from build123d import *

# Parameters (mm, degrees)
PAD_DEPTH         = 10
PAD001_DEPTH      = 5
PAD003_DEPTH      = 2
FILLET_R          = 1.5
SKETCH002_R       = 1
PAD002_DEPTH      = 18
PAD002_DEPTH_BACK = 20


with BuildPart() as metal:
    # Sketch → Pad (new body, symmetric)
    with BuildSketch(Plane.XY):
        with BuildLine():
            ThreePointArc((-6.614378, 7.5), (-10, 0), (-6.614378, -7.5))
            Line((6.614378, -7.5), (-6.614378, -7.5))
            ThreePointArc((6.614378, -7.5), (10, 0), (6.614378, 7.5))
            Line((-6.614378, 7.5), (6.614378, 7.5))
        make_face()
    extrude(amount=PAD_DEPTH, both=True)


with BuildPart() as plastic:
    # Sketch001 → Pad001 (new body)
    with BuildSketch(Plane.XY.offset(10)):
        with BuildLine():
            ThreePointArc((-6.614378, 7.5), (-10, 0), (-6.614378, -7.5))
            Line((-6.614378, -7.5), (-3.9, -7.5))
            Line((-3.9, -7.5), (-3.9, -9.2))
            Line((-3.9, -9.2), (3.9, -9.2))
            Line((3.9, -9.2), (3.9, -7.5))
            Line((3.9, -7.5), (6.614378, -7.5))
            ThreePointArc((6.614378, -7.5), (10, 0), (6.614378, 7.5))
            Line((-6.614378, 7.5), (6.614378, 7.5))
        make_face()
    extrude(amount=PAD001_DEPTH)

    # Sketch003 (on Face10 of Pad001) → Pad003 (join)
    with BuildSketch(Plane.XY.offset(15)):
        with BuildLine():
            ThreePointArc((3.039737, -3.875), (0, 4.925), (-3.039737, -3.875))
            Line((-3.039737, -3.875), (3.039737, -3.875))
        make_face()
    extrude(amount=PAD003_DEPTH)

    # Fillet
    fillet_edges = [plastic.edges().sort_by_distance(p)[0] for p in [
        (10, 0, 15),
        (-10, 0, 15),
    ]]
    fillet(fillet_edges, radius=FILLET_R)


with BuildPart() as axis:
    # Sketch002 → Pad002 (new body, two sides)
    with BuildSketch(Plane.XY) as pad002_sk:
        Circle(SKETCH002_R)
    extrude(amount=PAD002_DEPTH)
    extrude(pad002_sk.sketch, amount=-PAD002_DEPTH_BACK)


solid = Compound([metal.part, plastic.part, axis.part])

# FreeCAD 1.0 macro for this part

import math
import FreeCAD as App
import Part
import Sketcher
Q = App.Units.Quantity


def edges_at(feature, points):
    """Names of the edges that pass closest to the given points."""
    edges = feature.Shape.Edges
    near = lambda p: min(range(len(edges)), key=lambda i: edges[i].distToShape(Part.Vertex(*p))[0])
    return sorted({f"Edge{near(p) + 1}" for p in points})

doc = App.newDocument("Part")
body = doc.addObject("PartDesign::Body", "Body")

sketch1 = body.newObject("Sketcher::SketchObject", "Sketch")
sketch1.AttachmentSupport = (doc.getObject("XY_Plane"), [""])
sketch1.MapMode = "FlatFace"
sketch1.addGeometry([
    Part.ArcOfCircle(Part.Circle(App.Vector(0, 0, 0), App.Vector(0, 0, 1), 10), math.radians(131), math.radians(229)),
    Part.LineSegment(App.Vector(-7, -8, 0), App.Vector(7, -8, 0)),
    Part.ArcOfCircle(Part.Circle(App.Vector(0, 0, 0), App.Vector(0, 0, 1), 10), math.radians(-49), math.radians(49)),
    Part.LineSegment(App.Vector(7, 8, 0), App.Vector(-7, 8, 0)),
], False)
sketch1.addConstraint([
    Sketcher.Constraint("Coincident", 0, 2, 1, 1),
    Sketcher.Constraint("Coincident", 1, 2, 2, 1),
    Sketcher.Constraint("Coincident", 2, 2, 3, 1),
    Sketcher.Constraint("Coincident", 3, 2, 0, 1),
    Sketcher.Constraint("Horizontal", 1),
    Sketcher.Constraint("Horizontal", 3),
    Sketcher.Constraint("Coincident", 0, 3, -1, 1),
    Sketcher.Constraint("Coincident", 2, 3, -1, 1),
    Sketcher.Constraint("Equal", 0, 2),
    Sketcher.Constraint("Vertical", 1, 2, 2, 2),
    Sketcher.Constraint("Radius", 0, Q("9.999999 mm")),
    Sketcher.Constraint("DistanceY", 1, 2, 2, 2, Q("15 mm")),
])
pad1 = body.newObject("PartDesign::Pad", "Pad")
pad1.Profile = sketch1
pad1.Length = 20
pad1.Midplane = True
body2 = doc.addObject("PartDesign::Body", "Body001")

sketch2 = body2.newObject("Sketcher::SketchObject", "Sketch001")
sketch2.AttachmentSupport = (doc.getObject("XY_Plane001"), [""])
sketch2.MapMode = "FlatFace"
sketch2.AttachmentOffset = App.Placement(App.Vector(0, 0, 10), App.Rotation())
sketch2.addGeometry([
    Part.ArcOfCircle(Part.Circle(App.Vector(0, 0, 0), App.Vector(0, 0, 1), 10), math.radians(131), math.radians(229)),
    Part.LineSegment(App.Vector(-6.6, -7.5, 0), App.Vector(-3.9, -7.5, 0)),
    Part.LineSegment(App.Vector(-3.9, -7.5, 0), App.Vector(-3.9, -9.2, 0)),
    Part.LineSegment(App.Vector(-3.9, -9.2, 0), App.Vector(3.9, -9.2, 0)),
    Part.LineSegment(App.Vector(3.9, -9.2, 0), App.Vector(3.9, -7.5, 0)),
    Part.LineSegment(App.Vector(3.9, -7.5, 0), App.Vector(6.6, -7.5, 0)),
    Part.ArcOfCircle(Part.Circle(App.Vector(0, 0, 0), App.Vector(0, 0, 1), 10), math.radians(-49), math.radians(49)),
    Part.LineSegment(App.Vector(6.6, 7.5, 0), App.Vector(-6.6, 7.5, 0)),
], False)
sketch2.addConstraint([
    Sketcher.Constraint("Coincident", 0, 2, 1, 1),
    Sketcher.Constraint("Coincident", 1, 2, 2, 1),
    Sketcher.Constraint("Coincident", 2, 2, 3, 1),
    Sketcher.Constraint("Coincident", 3, 2, 4, 1),
    Sketcher.Constraint("Coincident", 4, 2, 5, 1),
    Sketcher.Constraint("Coincident", 5, 2, 6, 1),
    Sketcher.Constraint("Coincident", 6, 2, 7, 1),
    Sketcher.Constraint("Coincident", 7, 2, 0, 1),
    Sketcher.Constraint("Horizontal", 1),
    Sketcher.Constraint("Vertical", 2),
    Sketcher.Constraint("Horizontal", 3),
    Sketcher.Constraint("Vertical", 4),
    Sketcher.Constraint("Horizontal", 5),
    Sketcher.Constraint("Horizontal", 7),
    Sketcher.Constraint("Coincident", 0, 3, -1, 1),
    Sketcher.Constraint("Coincident", 6, 3, -1, 1),
    Sketcher.Constraint("Equal", 0, 6),
    Sketcher.Constraint("Symmetric", 1, 2, 4, 2, -2),
    Sketcher.Constraint("Vertical", 5, 2, 6, 2),
    Sketcher.Constraint("Radius", 0, Q("9.999999 mm")),
    Sketcher.Constraint("DistanceX", 3, 1, 3, 2, Q("7.8 mm")),
    Sketcher.Constraint("DistanceY", 2, 2, 2, 1, Q("1.7 mm")),
    Sketcher.Constraint("DistanceY", 5, 2, 6, 2, Q("15 mm")),
])
pad2 = body2.newObject("PartDesign::Pad", "Pad001")
pad2.Profile = sketch2
pad2.Length = 5

sketch3 = body2.newObject("Sketcher::SketchObject", "Sketch002")
sketch3.AttachmentSupport = (doc.getObject("XY_Plane001"), [""])
sketch3.MapMode = "FlatFace"
sketch3.AttachmentOffset = App.Placement(App.Vector(0, 0, 15), App.Rotation())
sketch3.addGeometry([
    Part.ArcOfCircle(Part.Circle(App.Vector(0, 0, 0), App.Vector(0, 0, 1), 4.9), math.radians(-52), math.radians(232)),
    Part.LineSegment(App.Vector(-3, -3.9, 0), App.Vector(3, -3.9, 0)),
], False)
sketch3.addConstraint([
    Sketcher.Constraint("Coincident", 0, 1, 1, 2),
    Sketcher.Constraint("Coincident", 1, 1, 0, 2),
    Sketcher.Constraint("Horizontal", 1),
    Sketcher.Constraint("Coincident", 0, 3, -1, 1),
    Sketcher.Constraint("Radius", 0, Q("4.925 mm")),
    Sketcher.Constraint("DistanceY", 0, 1, -1, 1, Q("3.875 mm")),
])
pad3 = body2.newObject("PartDesign::Pad", "Pad002")
pad3.Profile = sketch3
pad3.Length = 2
doc.recompute()

fillet = body2.newObject("PartDesign::Fillet", "Fillet")
fillet.Base = (pad3, edges_at(pad3, [(10, 0, 15), (-10, 0, 15)]))
fillet.Radius = 1.5
body3 = doc.addObject("PartDesign::Body", "Body002")

sketch4 = body3.newObject("Sketcher::SketchObject", "Sketch003")
sketch4.AttachmentSupport = (doc.getObject("XY_Plane002"), [""])
sketch4.MapMode = "FlatFace"
sketch4.addGeometry(Part.Circle(App.Vector(0, 0, 0), App.Vector(0, 0, 1), 1), False)
sketch4.addConstraint([
    Sketcher.Constraint("Coincident", 0, 3, -1, 1),
    Sketcher.Constraint("Diameter", 0, Q("2 mm")),
])
pad4 = body3.newObject("PartDesign::Pad", "Pad003")
pad4.Profile = sketch4
pad4.Type = "TwoLengths"
pad4.Length = 18
pad4.Length2 = 20

doc.recompute()
